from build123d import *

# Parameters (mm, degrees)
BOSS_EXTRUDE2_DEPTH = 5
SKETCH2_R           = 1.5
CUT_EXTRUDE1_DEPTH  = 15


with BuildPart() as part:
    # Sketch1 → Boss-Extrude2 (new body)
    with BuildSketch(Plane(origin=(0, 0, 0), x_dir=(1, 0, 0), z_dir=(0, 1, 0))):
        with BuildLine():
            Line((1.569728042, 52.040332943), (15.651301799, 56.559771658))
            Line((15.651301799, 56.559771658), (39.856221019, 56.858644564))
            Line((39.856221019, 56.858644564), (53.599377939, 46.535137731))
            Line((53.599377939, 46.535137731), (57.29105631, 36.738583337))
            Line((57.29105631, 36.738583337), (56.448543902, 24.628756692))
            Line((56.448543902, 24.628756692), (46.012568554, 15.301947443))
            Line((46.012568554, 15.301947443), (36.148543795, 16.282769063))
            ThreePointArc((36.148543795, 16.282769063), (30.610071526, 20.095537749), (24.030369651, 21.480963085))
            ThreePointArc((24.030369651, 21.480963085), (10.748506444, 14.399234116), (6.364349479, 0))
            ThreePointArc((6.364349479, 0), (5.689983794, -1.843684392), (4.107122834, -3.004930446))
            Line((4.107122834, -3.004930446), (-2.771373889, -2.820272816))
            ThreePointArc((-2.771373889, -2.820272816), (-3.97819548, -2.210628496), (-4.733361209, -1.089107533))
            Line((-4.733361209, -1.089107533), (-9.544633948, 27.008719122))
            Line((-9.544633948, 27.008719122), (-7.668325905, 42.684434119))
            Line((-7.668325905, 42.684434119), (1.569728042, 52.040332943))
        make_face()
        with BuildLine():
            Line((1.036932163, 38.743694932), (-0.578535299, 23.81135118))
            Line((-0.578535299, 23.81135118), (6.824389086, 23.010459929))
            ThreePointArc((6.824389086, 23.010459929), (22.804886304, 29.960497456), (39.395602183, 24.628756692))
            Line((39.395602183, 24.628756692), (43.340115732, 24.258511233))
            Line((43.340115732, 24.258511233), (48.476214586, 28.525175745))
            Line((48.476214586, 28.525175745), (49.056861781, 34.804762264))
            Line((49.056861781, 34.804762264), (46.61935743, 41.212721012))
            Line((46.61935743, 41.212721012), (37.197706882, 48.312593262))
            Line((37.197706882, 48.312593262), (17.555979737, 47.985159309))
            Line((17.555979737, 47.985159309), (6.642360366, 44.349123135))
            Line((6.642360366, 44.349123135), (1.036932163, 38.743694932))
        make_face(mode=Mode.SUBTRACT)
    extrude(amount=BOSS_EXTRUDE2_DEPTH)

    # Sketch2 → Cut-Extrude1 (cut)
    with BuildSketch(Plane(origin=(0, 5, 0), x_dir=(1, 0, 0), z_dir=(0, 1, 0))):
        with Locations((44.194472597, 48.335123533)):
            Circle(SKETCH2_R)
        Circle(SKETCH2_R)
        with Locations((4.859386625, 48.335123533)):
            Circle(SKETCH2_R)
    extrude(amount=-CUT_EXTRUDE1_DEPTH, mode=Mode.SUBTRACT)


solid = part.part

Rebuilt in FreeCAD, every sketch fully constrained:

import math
import FreeCAD as App
import Part
import Sketcher

V = App.Vector
Q = App.Units.Quantity

doc = App.newDocument("Part")
body = doc.addObject("PartDesign::Body", "Body")

# Sketch on XZ plane
sketch1 = body.newObject("Sketcher::SketchObject", "Sketch")
sketch1.AttachmentSupport = (doc.getObject("XZ_Plane"), [""])
sketch1.MapMode = "FlatFace"
sketch1.addGeometry(Part.LineSegment(V(15.7, -56.6, 0), V(1.6, -52, 0)), False)
sketch1.addGeometry(Part.LineSegment(V(1.6, -52, 0), V(-7.7, -42.7, 0)), False)
sketch1.addGeometry(Part.LineSegment(V(-7.7, -42.7, 0), V(-9.5, -27, 0)), False)
sketch1.addGeometry(Part.LineSegment(V(-9.5, -27, 0), V(-4.7, 1.1, 0)), False)
sketch1.addGeometry(Part.ArcOfCircle(Part.Circle(V(-2.2, 0.2, 0), V(0, 0, 1), 2.7), math.radians(102), math.radians(161)), False)
sketch1.addGeometry(Part.LineSegment(V(-2.8, 2.8, 0), V(4.1, 3, 0)), False)
sketch1.addGeometry(Part.ArcOfCircle(Part.Circle(V(3, -0.2, 0), V(0, 0, 1), 3.4), math.radians(3), math.radians(71)), False)
sketch1.addGeometry(Part.ArcOfCircle(Part.Circle(V(25.9, -1.9, 0), V(0, 0, 1), 19.7), math.radians(174), math.radians(264)), False)
sketch1.addGeometry(Part.ArcOfCircle(Part.Circle(V(23.9, -4.4, 0), V(0, 0, 1), 17.1), math.radians(-89), math.radians(-44)), False)
sketch1.addGeometry(Part.LineSegment(V(36.1, -16.3, 0), V(46, -15.3, 0)), False)
sketch1.addGeometry(Part.LineSegment(V(46, -15.3, 0), V(56.4, -24.6, 0)), False)
sketch1.addGeometry(Part.LineSegment(V(56.4, -24.6, 0), V(57.3, -36.7, 0)), False)
sketch1.addGeometry(Part.LineSegment(V(57.3, -36.7, 0), V(53.6, -46.5, 0)), False)
sketch1.addGeometry(Part.LineSegment(V(53.6, -46.5, 0), V(39.9, -56.9, 0)), False)
sketch1.addGeometry(Part.LineSegment(V(39.9, -56.9, 0), V(15.7, -56.6, 0)), False)
sketch1.addGeometry(Part.LineSegment(V(1, -38.7, 0), V(6.6, -44.3, 0)), False)
sketch1.addGeometry(Part.LineSegment(V(6.6, -44.3, 0), V(17.6, -48, 0)), False)
sketch1.addGeometry(Part.LineSegment(V(17.6, -48, 0), V(37.2, -48.3, 0)), False)
sketch1.addGeometry(Part.LineSegment(V(37.2, -48.3, 0), V(46.6, -41.2, 0)), False)
sketch1.addGeometry(Part.LineSegment(V(46.6, -41.2, 0), V(49.1, -34.8, 0)), False)
sketch1.addGeometry(Part.LineSegment(V(49.1, -34.8, 0), V(48.5, -28.5, 0)), False)
sketch1.addGeometry(Part.LineSegment(V(48.5, -28.5, 0), V(43.3, -24.3, 0)), False)
sketch1.addGeometry(Part.LineSegment(V(43.3, -24.3, 0), V(39.4, -24.6, 0)), False)
sketch1.addGeometry(Part.ArcOfCircle(Part.Circle(V(24, -5.3, 0), V(0, 0, 1), 24.7), math.radians(-134), math.radians(-52)), False)
sketch1.addGeometry(Part.LineSegment(V(6.8, -23, 0), V(-0.6, -23.8, 0)), False)
sketch1.addGeometry(Part.LineSegment(V(-0.6, -23.8, 0), V(1, -38.7, 0)), False)
sketch1.addConstraint(Sketcher.Constraint("Coincident", 0, 2, 1, 1))
sketch1.addConstraint(Sketcher.Constraint("Coincident", 1, 2, 2, 1))
sketch1.addConstraint(Sketcher.Constraint("Coincident", 2, 2, 3, 1))
sketch1.addConstraint(Sketcher.Constraint("Coincident", 3, 2, 4, 2))
sketch1.addConstraint(Sketcher.Constraint("Coincident", 4, 1, 5, 1))
sketch1.addConstraint(Sketcher.Constraint("Coincident", 5, 2, 6, 2))
sketch1.addConstraint(Sketcher.Constraint("Coincident", 6, 1, 7, 1))
sketch1.addConstraint(Sketcher.Constraint("Coincident", 7, 2, 8, 1))
sketch1.addConstraint(Sketcher.Constraint("Coincident", 8, 2, 9, 1))
sketch1.addConstraint(Sketcher.Constraint("Coincident", 9, 2, 10, 1))
sketch1.addConstraint(Sketcher.Constraint("Coincident", 10, 2, 11, 1))
sketch1.addConstraint(Sketcher.Constraint("Coincident", 11, 2, 12, 1))
sketch1.addConstraint(Sketcher.Constraint("Coincident", 12, 2, 13, 1))
sketch1.addConstraint(Sketcher.Constraint("Coincident", 13, 2, 14, 1))
sketch1.addConstraint(Sketcher.Constraint("Coincident", 14, 2, 0, 1))
sketch1.addConstraint(Sketcher.Constraint("Coincident", 15, 2, 16, 1))
sketch1.addConstraint(Sketcher.Constraint("Coincident", 16, 2, 17, 1))
sketch1.addConstraint(Sketcher.Constraint("Coincident", 17, 2, 18, 1))
sketch1.addConstraint(Sketcher.Constraint("Coincident", 18, 2, 19, 1))
sketch1.addConstraint(Sketcher.Constraint("Coincident", 19, 2, 20, 1))
sketch1.addConstraint(Sketcher.Constraint("Coincident", 20, 2, 21, 1))
sketch1.addConstraint(Sketcher.Constraint("Coincident", 21, 2, 22, 1))
sketch1.addConstraint(Sketcher.Constraint("Coincident", 22, 2, 23, 2))
sketch1.addConstraint(Sketcher.Constraint("Coincident", 23, 1, 24, 1))
sketch1.addConstraint(Sketcher.Constraint("Coincident", 24, 2, 25, 1))
sketch1.addConstraint(Sketcher.Constraint("Coincident", 25, 2, 15, 1))
sketch1.addConstraint(Sketcher.Constraint("PointOnObject", 6, 1, -1))
sketch1.addConstraint(Sketcher.Constraint("Perpendicular", 24, 25))
sketch1.addConstraint(Sketcher.Constraint("Horizontal", 10, 2, 22, 2))
sketch1.addConstraint(Sketcher.Constraint("Vertical", 23, 3, 7, 2))
sketch1.addConstraint(Sketcher.Constraint("Angle", 15, Q("-45 deg")))
sketch1.addConstraint(Sketcher.Constraint("DistanceX", 8, 2, 10, 2, Q("20.3 mm")))
sketch1.addConstraint(Sketcher.Constraint("Radius", 6, Q("3.391779 mm")))
sketch1.addConstraint(Sketcher.Constraint("Radius", 4, Q("2.677924 mm")))
sketch1.addConstraint(Sketcher.Constraint("Radius", 7, Q("19.666215 mm")))
sketch1.addConstraint(Sketcher.Constraint("Radius", 8, Q("17.117665 mm")))
sketch1.addConstraint(Sketcher.Constraint("Radius", 23, Q("24.695542 mm")))
sketch1.addConstraint(Sketcher.Constraint("DistanceY", 23, 3, 4, 3, Q("5.498 mm")))
sketch1.addConstraint(Sketcher.Constraint("Distance", 11, Q("12.139099 mm")))
sketch1.addConstraint(Sketcher.Constraint("Distance", 19, Q("6.8559 mm")))
sketch1.addConstraint(Sketcher.Constraint("DistanceX", -1, 1, 14, 2, Q("15.651302 mm")))
sketch1.addConstraint(Sketcher.Constraint("DistanceY", 0, 2, 1, 2, Q("9.355899 mm")))
sketch1.addConstraint(Sketcher.Constraint("DistanceY", 2, 2, 6, 3, Q("26.815299 mm")))
sketch1.addConstraint(Sketcher.Constraint("DistanceY", 8, 3, 4, 1, Q("7.1844 mm")))
sketch1.addConstraint(Sketcher.Constraint("DistanceX", 7, 2, 9, 2, Q("21.982199 mm")))
sketch1.addConstraint(Sketcher.Constraint("DistanceX", 18, 2, 11, 2, Q("10.671699 mm")))
sketch1.addConstraint(Sketcher.Constraint("DistanceX", 21, 2, 20, 2, Q("5.136099 mm")))
sketch1.addConstraint(Sketcher.Constraint("DistanceX", 6, 3, 23, 1, Q("3.846299 mm")))
sketch1.addConstraint(Sketcher.Constraint("DistanceX", 2, 2, 24, 2, Q("8.966099 mm")))
sketch1.addConstraint(Sketcher.Constraint("Distance", 0, Q("14.789052 mm")))
sketch1.addConstraint(Sketcher.Constraint("Distance", 2, Q("15.787608 mm")))
sketch1.addConstraint(Sketcher.Constraint("Distance", 9, Q("9.912668 mm")))
sketch1.addConstraint(Sketcher.Constraint("Distance", 10, Q("13.996391 mm")))
sketch1.addConstraint(Sketcher.Constraint("Distance", 12, Q("10.469048 mm")))
sketch1.addConstraint(Sketcher.Constraint("Distance", 21, Q("6.67712 mm")))
sketch1.addConstraint(Sketcher.Constraint("Distance", 22, Q("3.961852 mm")))
sketch1.addConstraint(Sketcher.Constraint("Distance", 24, Q("7.446121 mm")))
sketch1.addConstraint(Sketcher.Constraint("DistanceY", -1, 1, 4, 3, Q("0.202619 mm")))
sketch1.addConstraint(Sketcher.Constraint("DistanceX", -1, 1, 6, 3, Q("2.97809 mm")))
sketch1.addConstraint(Sketcher.Constraint("DistanceY", 6, 3, -1, 1, Q("0.193421 mm")))
sketch1.addConstraint(Sketcher.Constraint("DistanceX", -1, 1, 7, 3, Q("25.937841 mm")))
sketch1.addConstraint(Sketcher.Constraint("DistanceX", -1, 1, 8, 3, Q("23.861949 mm")))
sketch1.addConstraint(Sketcher.Constraint("DistanceX", -1, 1, 23, 3, Q("24.03037 mm")))
sketch1.addConstraint(Sketcher.Constraint("DistanceX", -1, 1, 0, 2, Q("1.569728 mm")))
sketch1.addConstraint(Sketcher.Constraint("DistanceX", 3, 2, -1, 1, Q("4.733361 mm")))
sketch1.addConstraint(Sketcher.Constraint("DistanceY", -1, 1, 5, 2, Q("3.00493 mm")))
sketch1.addConstraint(Sketcher.Constraint("DistanceX", -1, 1, 13, 2, Q("39.856221 mm")))
sketch1.addConstraint(Sketcher.Constraint("DistanceY", 14, 2, -1, 1, Q("56.559772 mm")))
sketch1.addConstraint(Sketcher.Constraint("DistanceX", -1, 1, 15, 2, Q("6.64236 mm")))
sketch1.addConstraint(Sketcher.Constraint("DistanceX", -1, 1, 16, 2, Q("17.55598 mm")))
sketch1.addConstraint(Sketcher.Constraint("DistanceY", 16, 2, -1, 1, Q("47.985159 mm")))
sketch1.addConstraint(Sketcher.Constraint("DistanceY", 18, 2, -1, 1, Q("41.212721 mm")))
sketch1.addConstraint(Sketcher.Constraint("DistanceX", -1, 1, 19, 2, Q("49.056862 mm")))
sketch1.addConstraint(Sketcher.Constraint("DistanceY", 21, 2, -1, 1, Q("24.258511 mm")))
sketch1.addConstraint(Sketcher.Constraint("DistanceY", 24, 2, -1, 1, Q("23.811351 mm")))
sketch1.addConstraint(Sketcher.Constraint("DistanceX", 4, 3, 8, 3, Q("26.068372 mm")))
sketch1.addConstraint(Sketcher.Constraint("DistanceY", 8, 2, 9, 2, Q("0.980822 mm")))
sketch1.addConstraint(Sketcher.Constraint("DistanceY", 11, 2, 7, 2, Q("15.25762 mm")))
sketch1.addConstraint(Sketcher.Constraint("DistanceX", 12, 2, 11, 2, Q("3.691678 mm")))
sketch1.addConstraint(Sketcher.Constraint("DistanceY", 13, 2, 11, 2, Q("20.120061 mm")))
sketch1.addConstraint(Sketcher.Constraint("DistanceY", 0, 2, 15, 2, Q("7.69121 mm")))
sketch1.addConstraint(Sketcher.Constraint("DistanceY", 13, 2, 17, 2, Q("8.546051 mm")))
sketch1.addConstraint(Sketcher.Constraint("DistanceX", 17, 2, 12, 2, Q("16.401671 mm")))
pad1 = body.newObject("PartDesign::Pad", "Pad")
pad1.Profile = sketch1
pad1.Length = 5
pad1.Reversed = True

# Sketch on XZ plane
sketch2 = body.newObject("Sketcher::SketchObject", "Sketch001")
sketch2.AttachmentSupport = (doc.getObject("XZ_Plane"), [""])
sketch2.MapMode = "FlatFace"
sketch2.AttachmentOffset = App.Placement(V(0, 0, -5), App.Rotation())
sketch2.addGeometry(Part.Circle(V(44.2, -48.3, 0), V(0, 0, 1), 1.5), False)
sketch2.addGeometry(Part.Circle(V(0, 0, 0), V(0, 0, 1), 1.5), False)
sketch2.addGeometry(Part.Circle(V(4.9, -48.3, 0), V(0, 0, 1), 1.5), False)
sketch2.addConstraint(Sketcher.Constraint("Coincident", 1, 3, -1, 1))
sketch2.addConstraint(Sketcher.Constraint("Equal", 0, 1))
sketch2.addConstraint(Sketcher.Constraint("Equal", 1, 2))
sketch2.addConstraint(Sketcher.Constraint("Horizontal", 0, 3, 2, 3))
sketch2.addConstraint(Sketcher.Constraint("Diameter", 0, Q("3 mm")))
sketch2.addConstraint(Sketcher.Constraint("DistanceX", -1, 1, 0, 3, Q("44.194473 mm")))
sketch2.addConstraint(Sketcher.Constraint("DistanceY", 0, 3, -1, 1, Q("48.335124 mm")))
sketch2.addConstraint(Sketcher.Constraint("DistanceX", -1, 1, 2, 3, Q("4.859387 mm")))
pocket1 = body.newObject("PartDesign::Pocket", "Pocket")
pocket1.Profile = sketch2
pocket1.Length = 15
pocket1.Reversed = True

doc.recompute()
